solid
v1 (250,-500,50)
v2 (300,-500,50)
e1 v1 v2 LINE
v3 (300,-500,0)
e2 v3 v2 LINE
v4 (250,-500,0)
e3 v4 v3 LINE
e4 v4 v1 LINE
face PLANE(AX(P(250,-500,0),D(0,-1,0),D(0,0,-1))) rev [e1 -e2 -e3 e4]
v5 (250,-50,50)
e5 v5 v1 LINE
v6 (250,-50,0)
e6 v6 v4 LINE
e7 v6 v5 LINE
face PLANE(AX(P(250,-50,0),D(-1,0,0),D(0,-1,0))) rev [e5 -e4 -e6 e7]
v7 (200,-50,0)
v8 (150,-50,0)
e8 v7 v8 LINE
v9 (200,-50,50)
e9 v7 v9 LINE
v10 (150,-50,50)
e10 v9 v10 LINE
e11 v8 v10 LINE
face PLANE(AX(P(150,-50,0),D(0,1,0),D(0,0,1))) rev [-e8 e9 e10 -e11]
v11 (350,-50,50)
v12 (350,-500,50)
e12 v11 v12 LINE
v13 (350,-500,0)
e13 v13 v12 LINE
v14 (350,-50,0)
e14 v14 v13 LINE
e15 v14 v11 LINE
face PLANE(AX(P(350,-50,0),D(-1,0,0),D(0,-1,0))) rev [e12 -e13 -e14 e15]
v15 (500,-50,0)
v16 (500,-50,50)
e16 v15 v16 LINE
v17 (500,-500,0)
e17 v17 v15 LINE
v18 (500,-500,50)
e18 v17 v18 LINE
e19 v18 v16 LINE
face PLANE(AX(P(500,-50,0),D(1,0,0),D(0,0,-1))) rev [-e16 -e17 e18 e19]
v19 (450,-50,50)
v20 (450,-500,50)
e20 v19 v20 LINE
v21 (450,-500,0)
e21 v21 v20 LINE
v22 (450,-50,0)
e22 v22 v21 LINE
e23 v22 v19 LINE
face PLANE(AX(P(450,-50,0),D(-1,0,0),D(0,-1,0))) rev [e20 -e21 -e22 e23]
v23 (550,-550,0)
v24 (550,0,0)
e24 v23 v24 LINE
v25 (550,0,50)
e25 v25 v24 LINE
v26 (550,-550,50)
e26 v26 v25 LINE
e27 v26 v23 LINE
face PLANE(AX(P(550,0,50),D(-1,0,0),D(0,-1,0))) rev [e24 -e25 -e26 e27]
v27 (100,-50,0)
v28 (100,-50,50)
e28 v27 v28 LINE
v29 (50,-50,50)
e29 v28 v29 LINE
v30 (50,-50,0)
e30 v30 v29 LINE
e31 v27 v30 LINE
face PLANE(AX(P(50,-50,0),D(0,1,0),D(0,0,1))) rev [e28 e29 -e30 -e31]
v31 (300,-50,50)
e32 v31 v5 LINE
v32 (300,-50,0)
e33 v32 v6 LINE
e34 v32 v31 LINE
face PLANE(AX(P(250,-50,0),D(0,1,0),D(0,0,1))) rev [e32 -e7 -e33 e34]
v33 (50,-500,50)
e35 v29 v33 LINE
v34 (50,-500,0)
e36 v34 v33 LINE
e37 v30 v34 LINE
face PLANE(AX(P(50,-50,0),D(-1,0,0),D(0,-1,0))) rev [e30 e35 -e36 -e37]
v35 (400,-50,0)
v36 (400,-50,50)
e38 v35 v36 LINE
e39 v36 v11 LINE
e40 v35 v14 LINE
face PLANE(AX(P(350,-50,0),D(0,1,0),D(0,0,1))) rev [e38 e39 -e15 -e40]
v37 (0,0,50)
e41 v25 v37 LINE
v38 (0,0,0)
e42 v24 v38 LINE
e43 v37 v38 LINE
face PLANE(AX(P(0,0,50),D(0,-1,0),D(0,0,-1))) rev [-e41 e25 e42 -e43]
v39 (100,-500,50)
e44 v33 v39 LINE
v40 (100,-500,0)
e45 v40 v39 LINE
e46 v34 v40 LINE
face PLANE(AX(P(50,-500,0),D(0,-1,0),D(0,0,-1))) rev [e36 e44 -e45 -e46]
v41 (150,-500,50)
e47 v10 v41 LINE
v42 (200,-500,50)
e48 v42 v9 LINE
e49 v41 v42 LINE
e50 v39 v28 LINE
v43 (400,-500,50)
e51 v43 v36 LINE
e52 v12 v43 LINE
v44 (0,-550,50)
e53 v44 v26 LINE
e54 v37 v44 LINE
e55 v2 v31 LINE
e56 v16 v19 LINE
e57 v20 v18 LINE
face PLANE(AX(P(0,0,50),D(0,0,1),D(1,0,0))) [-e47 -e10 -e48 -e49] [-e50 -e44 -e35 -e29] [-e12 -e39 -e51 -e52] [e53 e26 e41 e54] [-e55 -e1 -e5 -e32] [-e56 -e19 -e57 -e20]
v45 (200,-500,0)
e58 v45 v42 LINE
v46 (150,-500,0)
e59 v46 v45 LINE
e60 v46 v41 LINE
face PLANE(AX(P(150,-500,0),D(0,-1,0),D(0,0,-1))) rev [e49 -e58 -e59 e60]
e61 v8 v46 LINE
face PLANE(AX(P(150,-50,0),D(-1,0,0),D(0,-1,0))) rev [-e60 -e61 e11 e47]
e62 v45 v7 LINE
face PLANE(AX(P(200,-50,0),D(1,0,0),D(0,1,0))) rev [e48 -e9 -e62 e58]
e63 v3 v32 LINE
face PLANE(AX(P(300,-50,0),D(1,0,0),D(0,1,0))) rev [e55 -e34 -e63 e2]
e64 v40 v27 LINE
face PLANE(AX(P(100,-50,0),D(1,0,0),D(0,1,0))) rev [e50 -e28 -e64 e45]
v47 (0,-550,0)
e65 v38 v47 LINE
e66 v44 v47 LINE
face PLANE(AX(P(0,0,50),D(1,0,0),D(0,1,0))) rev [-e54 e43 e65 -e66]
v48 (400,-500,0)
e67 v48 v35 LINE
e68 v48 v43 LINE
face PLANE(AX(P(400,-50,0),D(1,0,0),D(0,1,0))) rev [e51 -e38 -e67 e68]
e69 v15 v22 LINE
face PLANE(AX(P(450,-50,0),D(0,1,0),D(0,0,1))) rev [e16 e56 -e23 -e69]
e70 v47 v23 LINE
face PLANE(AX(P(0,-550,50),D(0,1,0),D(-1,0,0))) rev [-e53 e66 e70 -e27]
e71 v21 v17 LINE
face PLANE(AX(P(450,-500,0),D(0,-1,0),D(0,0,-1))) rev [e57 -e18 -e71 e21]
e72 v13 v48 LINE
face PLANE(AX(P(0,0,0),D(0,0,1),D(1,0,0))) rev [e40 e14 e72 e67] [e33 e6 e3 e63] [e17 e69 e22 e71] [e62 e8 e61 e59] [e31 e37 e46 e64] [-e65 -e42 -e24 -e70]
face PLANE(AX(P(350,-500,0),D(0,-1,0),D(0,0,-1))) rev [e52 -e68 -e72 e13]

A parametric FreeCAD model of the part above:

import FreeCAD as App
import Part
import Sketcher
Q = App.Units.Quantity

doc = App.newDocument("Part")
body = doc.addObject("PartDesign::Body", "Body")

sketch1 = body.newObject("Sketcher::SketchObject", "Sketch")
sketch1.AttachmentSupport = (doc.getObject("XY_Plane"), [""])
sketch1.MapMode = "FlatFace"
sketch1.addGeometry([
    Part.LineSegment(App.Vector(0, 0, 0), App.Vector(0, -550, 0)),
    Part.LineSegment(App.Vector(0, -550, 0), App.Vector(550, -550, 0)),
    Part.LineSegment(App.Vector(550, -550, 0), App.Vector(550, 0, 0)),
    Part.LineSegment(App.Vector(550, 0, 0), App.Vector(0, 0, 0)),
], False)
sketch1.addConstraint([
    Sketcher.Constraint("Coincident", 0, 2, 1, 1),
    Sketcher.Constraint("Coincident", 1, 2, 2, 1),
    Sketcher.Constraint("Coincident", 2, 2, 3, 1),
    Sketcher.Constraint("Coincident", 3, 2, 0, 1),
    Sketcher.Constraint("Vertical", 0),
    Sketcher.Constraint("Horizontal", 1),
    Sketcher.Constraint("Vertical", 2),
    Sketcher.Constraint("Horizontal", 3),
    Sketcher.Constraint("Coincident", 3, 2, -1, 1),
    Sketcher.Constraint("Equal", 3, 0),
    Sketcher.Constraint("DistanceX", 1, 1, 1, 2, Q("550 mm")),
])
pad1 = body.newObject("PartDesign::Pad", "Pad")
pad1.Profile = sketch1
pad1.Length = 50

sketch2 = body.newObject("Sketcher::SketchObject", "Sketch001")
sketch2.AttachmentSupport = (doc.getObject("XY_Plane"), [""])
sketch2.MapMode = "FlatFace"
sketch2.AttachmentOffset = App.Placement(App.Vector(0, 0, 50), App.Rotation())
sketch2.addGeometry([
    Part.LineSegment(App.Vector(50, -50, 0), App.Vector(50, -500, 0)),
    Part.LineSegment(App.Vector(50, -500, 0), App.Vector(100, -500, 0)),
    Part.LineSegment(App.Vector(100, -500, 0), App.Vector(100, -50, 0)),
    Part.LineSegment(App.Vector(100, -50, 0), App.Vector(50, -50, 0)),
    Part.LineSegment(App.Vector(150, -50, 0), App.Vector(150, -500, 0)),
    Part.LineSegment(App.Vector(150, -500, 0), App.Vector(200, -500, 0)),
    Part.LineSegment(App.Vector(200, -500, 0), App.Vector(200, -50, 0)),
    Part.LineSegment(App.Vector(200, -50, 0), App.Vector(150, -50, 0)),
    Part.LineSegment(App.Vector(250, -50, 0), App.Vector(250, -500, 0)),
    Part.LineSegment(App.Vector(250, -500, 0), App.Vector(300, -500, 0)),
    Part.LineSegment(App.Vector(300, -500, 0), App.Vector(300, -50, 0)),
    Part.LineSegment(App.Vector(300, -50, 0), App.Vector(250, -50, 0)),
    Part.LineSegment(App.Vector(350, -50, 0), App.Vector(350, -500, 0)),
    Part.LineSegment(App.Vector(350, -500, 0), App.Vector(400, -500, 0)),
    Part.LineSegment(App.Vector(400, -500, 0), App.Vector(400, -50, 0)),
    Part.LineSegment(App.Vector(400, -50, 0), App.Vector(350, -50, 0)),
    Part.LineSegment(App.Vector(450, -50, 0), App.Vector(450, -500, 0)),
    Part.LineSegment(App.Vector(450, -500, 0), App.Vector(500, -500, 0)),
    Part.LineSegment(App.Vector(500, -500, 0), App.Vector(500, -50, 0)),
    Part.LineSegment(App.Vector(500, -50, 0), App.Vector(450, -50, 0)),
], False)
sketch2.addConstraint([
    Sketcher.Constraint("Coincident", 0, 2, 1, 1),
    Sketcher.Constraint("Coincident", 1, 2, 2, 1),
    Sketcher.Constraint("Coincident", 2, 2, 3, 1),
    Sketcher.Constraint("Coincident", 3, 2, 0, 1),
    Sketcher.Constraint("Coincident", 4, 2, 5, 1),
    Sketcher.Constraint("Coincident", 5, 2, 6, 1),
    Sketcher.Constraint("Coincident", 6, 2, 7, 1),
    Sketcher.Constraint("Coincident", 7, 2, 4, 1),
    Sketcher.Constraint("Coincident", 8, 2, 9, 1),
    Sketcher.Constraint("Coincident", 9, 2, 10, 1),
    Sketcher.Constraint("Coincident", 10, 2, 11, 1),
    Sketcher.Constraint("Coincident", 11, 2, 8, 1),
    Sketcher.Constraint("Coincident", 12, 2, 13, 1),
    Sketcher.Constraint("Coincident", 13, 2, 14, 1),
    Sketcher.Constraint("Coincident", 14, 2, 15, 1),
    Sketcher.Constraint("Coincident", 15, 2, 12, 1),
    Sketcher.Constraint("Coincident", 16, 2, 17, 1),
    Sketcher.Constraint("Coincident", 17, 2, 18, 1),
    Sketcher.Constraint("Coincident", 18, 2, 19, 1),
    Sketcher.Constraint("Coincident", 19, 2, 16, 1),
    Sketcher.Constraint("Vertical", 0),
    Sketcher.Constraint("Horizontal", 1),
    Sketcher.Constraint("Vertical", 2),
    Sketcher.Constraint("Horizontal", 3),
    Sketcher.Constraint("Vertical", 4),
    Sketcher.Constraint("Horizontal", 5),
    Sketcher.Constraint("Vertical", 6),
    Sketcher.Constraint("Horizontal", 7),
    Sketcher.Constraint("Vertical", 8),
    Sketcher.Constraint("Horizontal", 9),
    Sketcher.Constraint("Vertical", 10),
    Sketcher.Constraint("Horizontal", 11),
    Sketcher.Constraint("Vertical", 12),
    Sketcher.Constraint("Horizontal", 13),
    Sketcher.Constraint("Vertical", 14),
    Sketcher.Constraint("Horizontal", 15),
    Sketcher.Constraint("Vertical", 16),
    Sketcher.Constraint("Horizontal", 17),
    Sketcher.Constraint("Vertical", 18),
    Sketcher.Constraint("Horizontal", 19),
    Sketcher.Constraint("Horizontal", 1, 2, 4, 2),
    Sketcher.Constraint("Horizontal", 3, 2, 6, 2),
    Sketcher.Constraint("Horizontal", 5, 2, 8, 2),
    Sketcher.Constraint("Horizontal", 7, 2, 10, 2),
    Sketcher.Constraint("Horizontal", 9, 2, 12, 2),
    Sketcher.Constraint("Horizontal", 11, 2, 14, 2),
    Sketcher.Constraint("Horizontal", 13, 2, 16, 2),
    Sketcher.Constraint("Horizontal", 15, 2, 18, 2),
    Sketcher.Constraint("Equal", 3, 5),
    Sketcher.Constraint("Equal", 7, 9),
    Sketcher.Constraint("Equal", 11, 13),
    Sketcher.Constraint("Equal", 15, 17),
    Sketcher.Constraint("DistanceX", 1, 1, 1, 2, Q("50 mm")),
    Sketcher.Constraint("DistanceY", 0, 2, 0, 1, Q("450 mm")),
    Sketcher.Constraint("DistanceX", -1, 1, 0, 2, Q("50 mm")),
    Sketcher.Constraint("DistanceY", 0, 2, -1, 1, Q("500 mm")),
    Sketcher.Constraint("DistanceX", -1, 1, 4, 2, Q("150 mm")),
    Sketcher.Constraint("DistanceX", -1, 1, 8, 2, Q("250 mm")),
    Sketcher.Constraint("DistanceX", -1, 1, 12, 2, Q("350 mm")),
    Sketcher.Constraint("DistanceX", -1, 1, 16, 2, Q("450 mm")),
])
pocket1 = body.newObject("PartDesign::Pocket", "Pocket")
pocket1.Profile = sketch2
pocket1.Type = "ThroughAll"

doc.recompute()
